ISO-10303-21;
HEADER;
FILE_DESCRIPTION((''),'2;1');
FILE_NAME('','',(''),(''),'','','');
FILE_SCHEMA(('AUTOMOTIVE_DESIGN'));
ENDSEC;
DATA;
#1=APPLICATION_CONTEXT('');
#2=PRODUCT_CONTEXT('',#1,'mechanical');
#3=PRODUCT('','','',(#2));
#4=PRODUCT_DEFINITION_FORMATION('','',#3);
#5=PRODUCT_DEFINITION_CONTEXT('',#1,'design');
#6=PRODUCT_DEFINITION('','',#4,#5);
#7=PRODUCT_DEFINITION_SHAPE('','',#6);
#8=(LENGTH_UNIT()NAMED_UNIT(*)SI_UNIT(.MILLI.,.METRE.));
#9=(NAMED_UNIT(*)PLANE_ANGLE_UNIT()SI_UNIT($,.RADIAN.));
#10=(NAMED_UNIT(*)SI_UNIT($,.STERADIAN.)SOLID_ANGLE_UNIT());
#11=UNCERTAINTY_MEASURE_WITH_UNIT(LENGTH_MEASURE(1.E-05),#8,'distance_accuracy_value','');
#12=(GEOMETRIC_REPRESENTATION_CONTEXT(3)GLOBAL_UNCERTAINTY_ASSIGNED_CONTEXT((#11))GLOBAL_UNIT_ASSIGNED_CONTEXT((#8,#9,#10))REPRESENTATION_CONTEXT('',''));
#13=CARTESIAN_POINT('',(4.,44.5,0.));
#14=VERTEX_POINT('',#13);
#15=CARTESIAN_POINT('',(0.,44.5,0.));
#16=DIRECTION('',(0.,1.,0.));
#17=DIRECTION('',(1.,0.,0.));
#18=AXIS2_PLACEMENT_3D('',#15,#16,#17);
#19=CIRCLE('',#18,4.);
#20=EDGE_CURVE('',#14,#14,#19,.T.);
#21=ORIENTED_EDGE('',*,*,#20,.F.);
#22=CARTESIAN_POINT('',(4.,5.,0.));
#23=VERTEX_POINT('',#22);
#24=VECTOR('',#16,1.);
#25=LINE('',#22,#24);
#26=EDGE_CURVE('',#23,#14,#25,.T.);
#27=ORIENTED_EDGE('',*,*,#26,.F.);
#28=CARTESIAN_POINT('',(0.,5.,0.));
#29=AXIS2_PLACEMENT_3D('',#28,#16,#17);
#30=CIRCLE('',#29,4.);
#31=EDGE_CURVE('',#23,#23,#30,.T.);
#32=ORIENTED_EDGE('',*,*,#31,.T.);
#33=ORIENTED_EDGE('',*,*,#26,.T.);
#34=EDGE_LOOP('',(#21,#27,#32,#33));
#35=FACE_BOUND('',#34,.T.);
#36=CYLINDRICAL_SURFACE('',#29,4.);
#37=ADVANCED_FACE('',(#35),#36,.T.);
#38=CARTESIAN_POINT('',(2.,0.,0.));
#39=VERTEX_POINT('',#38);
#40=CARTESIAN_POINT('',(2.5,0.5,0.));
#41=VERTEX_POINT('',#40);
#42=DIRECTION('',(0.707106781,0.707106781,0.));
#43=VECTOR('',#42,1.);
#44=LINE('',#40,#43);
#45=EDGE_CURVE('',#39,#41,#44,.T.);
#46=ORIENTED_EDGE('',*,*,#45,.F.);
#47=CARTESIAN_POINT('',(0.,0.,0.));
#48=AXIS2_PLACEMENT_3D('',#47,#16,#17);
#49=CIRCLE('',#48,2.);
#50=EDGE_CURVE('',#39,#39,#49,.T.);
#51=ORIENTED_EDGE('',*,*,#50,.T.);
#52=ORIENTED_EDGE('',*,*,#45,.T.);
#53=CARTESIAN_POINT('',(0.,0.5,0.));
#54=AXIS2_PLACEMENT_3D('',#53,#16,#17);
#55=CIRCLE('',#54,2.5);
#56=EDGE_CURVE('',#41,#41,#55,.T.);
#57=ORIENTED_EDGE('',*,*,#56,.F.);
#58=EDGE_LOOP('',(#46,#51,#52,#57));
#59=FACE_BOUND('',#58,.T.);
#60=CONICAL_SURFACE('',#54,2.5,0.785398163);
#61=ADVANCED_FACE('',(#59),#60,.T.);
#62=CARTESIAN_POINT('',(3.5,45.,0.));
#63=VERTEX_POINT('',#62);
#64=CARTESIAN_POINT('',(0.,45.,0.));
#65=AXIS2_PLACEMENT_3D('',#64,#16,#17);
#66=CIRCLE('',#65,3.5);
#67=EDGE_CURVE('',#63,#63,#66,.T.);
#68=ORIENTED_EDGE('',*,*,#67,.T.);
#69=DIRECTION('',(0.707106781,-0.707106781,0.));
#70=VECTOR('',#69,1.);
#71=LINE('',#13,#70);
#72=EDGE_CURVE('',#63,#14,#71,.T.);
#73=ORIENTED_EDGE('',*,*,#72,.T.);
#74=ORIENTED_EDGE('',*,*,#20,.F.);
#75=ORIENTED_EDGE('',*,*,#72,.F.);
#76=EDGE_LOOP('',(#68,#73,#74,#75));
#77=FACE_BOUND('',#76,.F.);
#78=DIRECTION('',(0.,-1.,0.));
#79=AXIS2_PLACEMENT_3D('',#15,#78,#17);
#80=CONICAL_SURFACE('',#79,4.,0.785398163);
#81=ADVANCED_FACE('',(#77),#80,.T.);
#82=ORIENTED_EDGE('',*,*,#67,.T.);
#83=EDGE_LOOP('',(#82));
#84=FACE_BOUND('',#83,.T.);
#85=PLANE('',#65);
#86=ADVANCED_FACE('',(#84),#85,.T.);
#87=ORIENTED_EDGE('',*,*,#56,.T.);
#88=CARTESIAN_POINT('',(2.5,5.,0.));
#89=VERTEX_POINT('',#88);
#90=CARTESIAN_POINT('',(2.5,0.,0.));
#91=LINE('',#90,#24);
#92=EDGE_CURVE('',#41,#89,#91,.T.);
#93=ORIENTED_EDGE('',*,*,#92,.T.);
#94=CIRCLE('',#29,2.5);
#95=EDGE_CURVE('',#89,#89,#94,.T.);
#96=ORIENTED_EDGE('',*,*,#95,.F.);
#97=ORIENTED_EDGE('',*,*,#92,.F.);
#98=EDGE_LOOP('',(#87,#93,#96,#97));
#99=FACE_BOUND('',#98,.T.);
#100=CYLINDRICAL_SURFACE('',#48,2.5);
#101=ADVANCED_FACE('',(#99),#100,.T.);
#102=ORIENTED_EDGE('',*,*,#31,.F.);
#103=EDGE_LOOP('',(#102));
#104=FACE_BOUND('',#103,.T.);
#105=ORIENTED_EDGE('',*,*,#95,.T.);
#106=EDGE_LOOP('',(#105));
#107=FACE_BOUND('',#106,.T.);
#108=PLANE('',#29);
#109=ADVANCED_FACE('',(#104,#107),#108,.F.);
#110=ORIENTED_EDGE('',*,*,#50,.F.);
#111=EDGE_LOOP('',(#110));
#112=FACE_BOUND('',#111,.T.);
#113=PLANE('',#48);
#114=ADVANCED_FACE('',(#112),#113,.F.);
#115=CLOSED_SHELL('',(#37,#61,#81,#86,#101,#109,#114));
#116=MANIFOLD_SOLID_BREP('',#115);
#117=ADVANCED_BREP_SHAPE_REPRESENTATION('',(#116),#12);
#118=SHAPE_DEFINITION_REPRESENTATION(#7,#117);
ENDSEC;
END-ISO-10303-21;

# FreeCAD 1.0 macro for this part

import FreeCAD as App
import Part
import Sketcher


def edges_at(feature, points):
    """Names of the edges that pass closest to the given points."""
    edges = feature.Shape.Edges
    near = lambda p: min(range(len(edges)), key=lambda i: edges[i].distToShape(Part.Vertex(*p))[0])
    return sorted({f"Edge{near(p) + 1}" for p in points})

doc = App.newDocument("Part")
params = doc.addObject("Spreadsheet::Sheet", "Params")
for row, (alias, value) in enumerate([
    ("sketch1_height", "5 mm"),
    ("sketch1_height2", "40 mm"),
    ("sketch1_width", "4 mm"),
    ("sketch1_width2", "2.5 mm"),
    ("revolution_angle", "360 deg"),
    ("chamfer_size", "0.5 mm"),
], start=1):
    params.set(f"A{row}", alias)
    params.set(f"B{row}", "=" + value)
    params.setAlias(f"B{row}", alias)

body = doc.addObject("PartDesign::Body", "Body")

# Sketch on XY plane
sketch1 = body.newObject("Sketcher::SketchObject", "Sketch")
sketch1.AttachmentSupport = (doc.getObject("XY_Plane"), [""])
sketch1.MapMode = "FlatFace"
sketch1.addGeometry([
    Part.LineSegment(App.Vector(0, 0, 0), App.Vector(2.5, 0, 0)),  # 0
    Part.LineSegment(App.Vector(2.5, 0, 0), App.Vector(2.5, 5, 0)),  # 1
    Part.LineSegment(App.Vector(2.5, 5, 0), App.Vector(4, 5, 0)),  # 2
    Part.LineSegment(App.Vector(4, 5, 0), App.Vector(4, 45, 0)),  # 3
    Part.LineSegment(App.Vector(4, 45, 0), App.Vector(0, 45, 0)),  # 4
    Part.LineSegment(App.Vector(0, 45, 0), App.Vector(0, 0, 0)),  # 5
], False)
sketch1.addConstraint([
    Sketcher.Constraint("Coincident", 0, 2, 1, 1),
    Sketcher.Constraint("Coincident", 1, 2, 2, 1),
    Sketcher.Constraint("Coincident", 2, 2, 3, 1),
    Sketcher.Constraint("Coincident", 3, 2, 4, 1),
    Sketcher.Constraint("Coincident", 4, 2, 5, 1),
    Sketcher.Constraint("Coincident", 5, 2, 0, 1),
    Sketcher.Constraint("Horizontal", 0),
    Sketcher.Constraint("Vertical", 1),
    Sketcher.Constraint("Horizontal", 2),
    Sketcher.Constraint("Vertical", 3),
    Sketcher.Constraint("Horizontal", 4),
    Sketcher.Constraint("Vertical", 5),
    Sketcher.Constraint("Coincident", 5, 2, -1, 1),
    Sketcher.Constraint("DistanceY", 1, 1, 1, 2, 5.0),
    Sketcher.Constraint("DistanceY", 3, 1, 3, 2, 40.0),
    Sketcher.Constraint("DistanceX", 4, 2, 4, 1, 4.0),
    Sketcher.Constraint("DistanceX", 0, 1, 0, 2, 2.5),
])
sketch1.setExpression("Constraints[13]", "Params.sketch1_height")
sketch1.setExpression("Constraints[14]", "Params.sketch1_height2")
sketch1.setExpression("Constraints[15]", "Params.sketch1_width")
sketch1.setExpression("Constraints[16]", "Params.sketch1_width2")
revolution = body.newObject("PartDesign::Revolution", "Revolution")
revolution.Profile = sketch1
revolution.ReferenceAxis = (sketch1, ["V_Axis"])
revolution.setExpression("Angle", "Params.revolution_angle")
doc.recompute()

chamfer = body.newObject("PartDesign::Chamfer", "Chamfer")
chamfer.Base = (revolution, edges_at(revolution, [(-4, 45, 0), (-2.5, 0, 0)]))
chamfer.setExpression("Size", "Params.chamfer_size")

doc.recompute()
